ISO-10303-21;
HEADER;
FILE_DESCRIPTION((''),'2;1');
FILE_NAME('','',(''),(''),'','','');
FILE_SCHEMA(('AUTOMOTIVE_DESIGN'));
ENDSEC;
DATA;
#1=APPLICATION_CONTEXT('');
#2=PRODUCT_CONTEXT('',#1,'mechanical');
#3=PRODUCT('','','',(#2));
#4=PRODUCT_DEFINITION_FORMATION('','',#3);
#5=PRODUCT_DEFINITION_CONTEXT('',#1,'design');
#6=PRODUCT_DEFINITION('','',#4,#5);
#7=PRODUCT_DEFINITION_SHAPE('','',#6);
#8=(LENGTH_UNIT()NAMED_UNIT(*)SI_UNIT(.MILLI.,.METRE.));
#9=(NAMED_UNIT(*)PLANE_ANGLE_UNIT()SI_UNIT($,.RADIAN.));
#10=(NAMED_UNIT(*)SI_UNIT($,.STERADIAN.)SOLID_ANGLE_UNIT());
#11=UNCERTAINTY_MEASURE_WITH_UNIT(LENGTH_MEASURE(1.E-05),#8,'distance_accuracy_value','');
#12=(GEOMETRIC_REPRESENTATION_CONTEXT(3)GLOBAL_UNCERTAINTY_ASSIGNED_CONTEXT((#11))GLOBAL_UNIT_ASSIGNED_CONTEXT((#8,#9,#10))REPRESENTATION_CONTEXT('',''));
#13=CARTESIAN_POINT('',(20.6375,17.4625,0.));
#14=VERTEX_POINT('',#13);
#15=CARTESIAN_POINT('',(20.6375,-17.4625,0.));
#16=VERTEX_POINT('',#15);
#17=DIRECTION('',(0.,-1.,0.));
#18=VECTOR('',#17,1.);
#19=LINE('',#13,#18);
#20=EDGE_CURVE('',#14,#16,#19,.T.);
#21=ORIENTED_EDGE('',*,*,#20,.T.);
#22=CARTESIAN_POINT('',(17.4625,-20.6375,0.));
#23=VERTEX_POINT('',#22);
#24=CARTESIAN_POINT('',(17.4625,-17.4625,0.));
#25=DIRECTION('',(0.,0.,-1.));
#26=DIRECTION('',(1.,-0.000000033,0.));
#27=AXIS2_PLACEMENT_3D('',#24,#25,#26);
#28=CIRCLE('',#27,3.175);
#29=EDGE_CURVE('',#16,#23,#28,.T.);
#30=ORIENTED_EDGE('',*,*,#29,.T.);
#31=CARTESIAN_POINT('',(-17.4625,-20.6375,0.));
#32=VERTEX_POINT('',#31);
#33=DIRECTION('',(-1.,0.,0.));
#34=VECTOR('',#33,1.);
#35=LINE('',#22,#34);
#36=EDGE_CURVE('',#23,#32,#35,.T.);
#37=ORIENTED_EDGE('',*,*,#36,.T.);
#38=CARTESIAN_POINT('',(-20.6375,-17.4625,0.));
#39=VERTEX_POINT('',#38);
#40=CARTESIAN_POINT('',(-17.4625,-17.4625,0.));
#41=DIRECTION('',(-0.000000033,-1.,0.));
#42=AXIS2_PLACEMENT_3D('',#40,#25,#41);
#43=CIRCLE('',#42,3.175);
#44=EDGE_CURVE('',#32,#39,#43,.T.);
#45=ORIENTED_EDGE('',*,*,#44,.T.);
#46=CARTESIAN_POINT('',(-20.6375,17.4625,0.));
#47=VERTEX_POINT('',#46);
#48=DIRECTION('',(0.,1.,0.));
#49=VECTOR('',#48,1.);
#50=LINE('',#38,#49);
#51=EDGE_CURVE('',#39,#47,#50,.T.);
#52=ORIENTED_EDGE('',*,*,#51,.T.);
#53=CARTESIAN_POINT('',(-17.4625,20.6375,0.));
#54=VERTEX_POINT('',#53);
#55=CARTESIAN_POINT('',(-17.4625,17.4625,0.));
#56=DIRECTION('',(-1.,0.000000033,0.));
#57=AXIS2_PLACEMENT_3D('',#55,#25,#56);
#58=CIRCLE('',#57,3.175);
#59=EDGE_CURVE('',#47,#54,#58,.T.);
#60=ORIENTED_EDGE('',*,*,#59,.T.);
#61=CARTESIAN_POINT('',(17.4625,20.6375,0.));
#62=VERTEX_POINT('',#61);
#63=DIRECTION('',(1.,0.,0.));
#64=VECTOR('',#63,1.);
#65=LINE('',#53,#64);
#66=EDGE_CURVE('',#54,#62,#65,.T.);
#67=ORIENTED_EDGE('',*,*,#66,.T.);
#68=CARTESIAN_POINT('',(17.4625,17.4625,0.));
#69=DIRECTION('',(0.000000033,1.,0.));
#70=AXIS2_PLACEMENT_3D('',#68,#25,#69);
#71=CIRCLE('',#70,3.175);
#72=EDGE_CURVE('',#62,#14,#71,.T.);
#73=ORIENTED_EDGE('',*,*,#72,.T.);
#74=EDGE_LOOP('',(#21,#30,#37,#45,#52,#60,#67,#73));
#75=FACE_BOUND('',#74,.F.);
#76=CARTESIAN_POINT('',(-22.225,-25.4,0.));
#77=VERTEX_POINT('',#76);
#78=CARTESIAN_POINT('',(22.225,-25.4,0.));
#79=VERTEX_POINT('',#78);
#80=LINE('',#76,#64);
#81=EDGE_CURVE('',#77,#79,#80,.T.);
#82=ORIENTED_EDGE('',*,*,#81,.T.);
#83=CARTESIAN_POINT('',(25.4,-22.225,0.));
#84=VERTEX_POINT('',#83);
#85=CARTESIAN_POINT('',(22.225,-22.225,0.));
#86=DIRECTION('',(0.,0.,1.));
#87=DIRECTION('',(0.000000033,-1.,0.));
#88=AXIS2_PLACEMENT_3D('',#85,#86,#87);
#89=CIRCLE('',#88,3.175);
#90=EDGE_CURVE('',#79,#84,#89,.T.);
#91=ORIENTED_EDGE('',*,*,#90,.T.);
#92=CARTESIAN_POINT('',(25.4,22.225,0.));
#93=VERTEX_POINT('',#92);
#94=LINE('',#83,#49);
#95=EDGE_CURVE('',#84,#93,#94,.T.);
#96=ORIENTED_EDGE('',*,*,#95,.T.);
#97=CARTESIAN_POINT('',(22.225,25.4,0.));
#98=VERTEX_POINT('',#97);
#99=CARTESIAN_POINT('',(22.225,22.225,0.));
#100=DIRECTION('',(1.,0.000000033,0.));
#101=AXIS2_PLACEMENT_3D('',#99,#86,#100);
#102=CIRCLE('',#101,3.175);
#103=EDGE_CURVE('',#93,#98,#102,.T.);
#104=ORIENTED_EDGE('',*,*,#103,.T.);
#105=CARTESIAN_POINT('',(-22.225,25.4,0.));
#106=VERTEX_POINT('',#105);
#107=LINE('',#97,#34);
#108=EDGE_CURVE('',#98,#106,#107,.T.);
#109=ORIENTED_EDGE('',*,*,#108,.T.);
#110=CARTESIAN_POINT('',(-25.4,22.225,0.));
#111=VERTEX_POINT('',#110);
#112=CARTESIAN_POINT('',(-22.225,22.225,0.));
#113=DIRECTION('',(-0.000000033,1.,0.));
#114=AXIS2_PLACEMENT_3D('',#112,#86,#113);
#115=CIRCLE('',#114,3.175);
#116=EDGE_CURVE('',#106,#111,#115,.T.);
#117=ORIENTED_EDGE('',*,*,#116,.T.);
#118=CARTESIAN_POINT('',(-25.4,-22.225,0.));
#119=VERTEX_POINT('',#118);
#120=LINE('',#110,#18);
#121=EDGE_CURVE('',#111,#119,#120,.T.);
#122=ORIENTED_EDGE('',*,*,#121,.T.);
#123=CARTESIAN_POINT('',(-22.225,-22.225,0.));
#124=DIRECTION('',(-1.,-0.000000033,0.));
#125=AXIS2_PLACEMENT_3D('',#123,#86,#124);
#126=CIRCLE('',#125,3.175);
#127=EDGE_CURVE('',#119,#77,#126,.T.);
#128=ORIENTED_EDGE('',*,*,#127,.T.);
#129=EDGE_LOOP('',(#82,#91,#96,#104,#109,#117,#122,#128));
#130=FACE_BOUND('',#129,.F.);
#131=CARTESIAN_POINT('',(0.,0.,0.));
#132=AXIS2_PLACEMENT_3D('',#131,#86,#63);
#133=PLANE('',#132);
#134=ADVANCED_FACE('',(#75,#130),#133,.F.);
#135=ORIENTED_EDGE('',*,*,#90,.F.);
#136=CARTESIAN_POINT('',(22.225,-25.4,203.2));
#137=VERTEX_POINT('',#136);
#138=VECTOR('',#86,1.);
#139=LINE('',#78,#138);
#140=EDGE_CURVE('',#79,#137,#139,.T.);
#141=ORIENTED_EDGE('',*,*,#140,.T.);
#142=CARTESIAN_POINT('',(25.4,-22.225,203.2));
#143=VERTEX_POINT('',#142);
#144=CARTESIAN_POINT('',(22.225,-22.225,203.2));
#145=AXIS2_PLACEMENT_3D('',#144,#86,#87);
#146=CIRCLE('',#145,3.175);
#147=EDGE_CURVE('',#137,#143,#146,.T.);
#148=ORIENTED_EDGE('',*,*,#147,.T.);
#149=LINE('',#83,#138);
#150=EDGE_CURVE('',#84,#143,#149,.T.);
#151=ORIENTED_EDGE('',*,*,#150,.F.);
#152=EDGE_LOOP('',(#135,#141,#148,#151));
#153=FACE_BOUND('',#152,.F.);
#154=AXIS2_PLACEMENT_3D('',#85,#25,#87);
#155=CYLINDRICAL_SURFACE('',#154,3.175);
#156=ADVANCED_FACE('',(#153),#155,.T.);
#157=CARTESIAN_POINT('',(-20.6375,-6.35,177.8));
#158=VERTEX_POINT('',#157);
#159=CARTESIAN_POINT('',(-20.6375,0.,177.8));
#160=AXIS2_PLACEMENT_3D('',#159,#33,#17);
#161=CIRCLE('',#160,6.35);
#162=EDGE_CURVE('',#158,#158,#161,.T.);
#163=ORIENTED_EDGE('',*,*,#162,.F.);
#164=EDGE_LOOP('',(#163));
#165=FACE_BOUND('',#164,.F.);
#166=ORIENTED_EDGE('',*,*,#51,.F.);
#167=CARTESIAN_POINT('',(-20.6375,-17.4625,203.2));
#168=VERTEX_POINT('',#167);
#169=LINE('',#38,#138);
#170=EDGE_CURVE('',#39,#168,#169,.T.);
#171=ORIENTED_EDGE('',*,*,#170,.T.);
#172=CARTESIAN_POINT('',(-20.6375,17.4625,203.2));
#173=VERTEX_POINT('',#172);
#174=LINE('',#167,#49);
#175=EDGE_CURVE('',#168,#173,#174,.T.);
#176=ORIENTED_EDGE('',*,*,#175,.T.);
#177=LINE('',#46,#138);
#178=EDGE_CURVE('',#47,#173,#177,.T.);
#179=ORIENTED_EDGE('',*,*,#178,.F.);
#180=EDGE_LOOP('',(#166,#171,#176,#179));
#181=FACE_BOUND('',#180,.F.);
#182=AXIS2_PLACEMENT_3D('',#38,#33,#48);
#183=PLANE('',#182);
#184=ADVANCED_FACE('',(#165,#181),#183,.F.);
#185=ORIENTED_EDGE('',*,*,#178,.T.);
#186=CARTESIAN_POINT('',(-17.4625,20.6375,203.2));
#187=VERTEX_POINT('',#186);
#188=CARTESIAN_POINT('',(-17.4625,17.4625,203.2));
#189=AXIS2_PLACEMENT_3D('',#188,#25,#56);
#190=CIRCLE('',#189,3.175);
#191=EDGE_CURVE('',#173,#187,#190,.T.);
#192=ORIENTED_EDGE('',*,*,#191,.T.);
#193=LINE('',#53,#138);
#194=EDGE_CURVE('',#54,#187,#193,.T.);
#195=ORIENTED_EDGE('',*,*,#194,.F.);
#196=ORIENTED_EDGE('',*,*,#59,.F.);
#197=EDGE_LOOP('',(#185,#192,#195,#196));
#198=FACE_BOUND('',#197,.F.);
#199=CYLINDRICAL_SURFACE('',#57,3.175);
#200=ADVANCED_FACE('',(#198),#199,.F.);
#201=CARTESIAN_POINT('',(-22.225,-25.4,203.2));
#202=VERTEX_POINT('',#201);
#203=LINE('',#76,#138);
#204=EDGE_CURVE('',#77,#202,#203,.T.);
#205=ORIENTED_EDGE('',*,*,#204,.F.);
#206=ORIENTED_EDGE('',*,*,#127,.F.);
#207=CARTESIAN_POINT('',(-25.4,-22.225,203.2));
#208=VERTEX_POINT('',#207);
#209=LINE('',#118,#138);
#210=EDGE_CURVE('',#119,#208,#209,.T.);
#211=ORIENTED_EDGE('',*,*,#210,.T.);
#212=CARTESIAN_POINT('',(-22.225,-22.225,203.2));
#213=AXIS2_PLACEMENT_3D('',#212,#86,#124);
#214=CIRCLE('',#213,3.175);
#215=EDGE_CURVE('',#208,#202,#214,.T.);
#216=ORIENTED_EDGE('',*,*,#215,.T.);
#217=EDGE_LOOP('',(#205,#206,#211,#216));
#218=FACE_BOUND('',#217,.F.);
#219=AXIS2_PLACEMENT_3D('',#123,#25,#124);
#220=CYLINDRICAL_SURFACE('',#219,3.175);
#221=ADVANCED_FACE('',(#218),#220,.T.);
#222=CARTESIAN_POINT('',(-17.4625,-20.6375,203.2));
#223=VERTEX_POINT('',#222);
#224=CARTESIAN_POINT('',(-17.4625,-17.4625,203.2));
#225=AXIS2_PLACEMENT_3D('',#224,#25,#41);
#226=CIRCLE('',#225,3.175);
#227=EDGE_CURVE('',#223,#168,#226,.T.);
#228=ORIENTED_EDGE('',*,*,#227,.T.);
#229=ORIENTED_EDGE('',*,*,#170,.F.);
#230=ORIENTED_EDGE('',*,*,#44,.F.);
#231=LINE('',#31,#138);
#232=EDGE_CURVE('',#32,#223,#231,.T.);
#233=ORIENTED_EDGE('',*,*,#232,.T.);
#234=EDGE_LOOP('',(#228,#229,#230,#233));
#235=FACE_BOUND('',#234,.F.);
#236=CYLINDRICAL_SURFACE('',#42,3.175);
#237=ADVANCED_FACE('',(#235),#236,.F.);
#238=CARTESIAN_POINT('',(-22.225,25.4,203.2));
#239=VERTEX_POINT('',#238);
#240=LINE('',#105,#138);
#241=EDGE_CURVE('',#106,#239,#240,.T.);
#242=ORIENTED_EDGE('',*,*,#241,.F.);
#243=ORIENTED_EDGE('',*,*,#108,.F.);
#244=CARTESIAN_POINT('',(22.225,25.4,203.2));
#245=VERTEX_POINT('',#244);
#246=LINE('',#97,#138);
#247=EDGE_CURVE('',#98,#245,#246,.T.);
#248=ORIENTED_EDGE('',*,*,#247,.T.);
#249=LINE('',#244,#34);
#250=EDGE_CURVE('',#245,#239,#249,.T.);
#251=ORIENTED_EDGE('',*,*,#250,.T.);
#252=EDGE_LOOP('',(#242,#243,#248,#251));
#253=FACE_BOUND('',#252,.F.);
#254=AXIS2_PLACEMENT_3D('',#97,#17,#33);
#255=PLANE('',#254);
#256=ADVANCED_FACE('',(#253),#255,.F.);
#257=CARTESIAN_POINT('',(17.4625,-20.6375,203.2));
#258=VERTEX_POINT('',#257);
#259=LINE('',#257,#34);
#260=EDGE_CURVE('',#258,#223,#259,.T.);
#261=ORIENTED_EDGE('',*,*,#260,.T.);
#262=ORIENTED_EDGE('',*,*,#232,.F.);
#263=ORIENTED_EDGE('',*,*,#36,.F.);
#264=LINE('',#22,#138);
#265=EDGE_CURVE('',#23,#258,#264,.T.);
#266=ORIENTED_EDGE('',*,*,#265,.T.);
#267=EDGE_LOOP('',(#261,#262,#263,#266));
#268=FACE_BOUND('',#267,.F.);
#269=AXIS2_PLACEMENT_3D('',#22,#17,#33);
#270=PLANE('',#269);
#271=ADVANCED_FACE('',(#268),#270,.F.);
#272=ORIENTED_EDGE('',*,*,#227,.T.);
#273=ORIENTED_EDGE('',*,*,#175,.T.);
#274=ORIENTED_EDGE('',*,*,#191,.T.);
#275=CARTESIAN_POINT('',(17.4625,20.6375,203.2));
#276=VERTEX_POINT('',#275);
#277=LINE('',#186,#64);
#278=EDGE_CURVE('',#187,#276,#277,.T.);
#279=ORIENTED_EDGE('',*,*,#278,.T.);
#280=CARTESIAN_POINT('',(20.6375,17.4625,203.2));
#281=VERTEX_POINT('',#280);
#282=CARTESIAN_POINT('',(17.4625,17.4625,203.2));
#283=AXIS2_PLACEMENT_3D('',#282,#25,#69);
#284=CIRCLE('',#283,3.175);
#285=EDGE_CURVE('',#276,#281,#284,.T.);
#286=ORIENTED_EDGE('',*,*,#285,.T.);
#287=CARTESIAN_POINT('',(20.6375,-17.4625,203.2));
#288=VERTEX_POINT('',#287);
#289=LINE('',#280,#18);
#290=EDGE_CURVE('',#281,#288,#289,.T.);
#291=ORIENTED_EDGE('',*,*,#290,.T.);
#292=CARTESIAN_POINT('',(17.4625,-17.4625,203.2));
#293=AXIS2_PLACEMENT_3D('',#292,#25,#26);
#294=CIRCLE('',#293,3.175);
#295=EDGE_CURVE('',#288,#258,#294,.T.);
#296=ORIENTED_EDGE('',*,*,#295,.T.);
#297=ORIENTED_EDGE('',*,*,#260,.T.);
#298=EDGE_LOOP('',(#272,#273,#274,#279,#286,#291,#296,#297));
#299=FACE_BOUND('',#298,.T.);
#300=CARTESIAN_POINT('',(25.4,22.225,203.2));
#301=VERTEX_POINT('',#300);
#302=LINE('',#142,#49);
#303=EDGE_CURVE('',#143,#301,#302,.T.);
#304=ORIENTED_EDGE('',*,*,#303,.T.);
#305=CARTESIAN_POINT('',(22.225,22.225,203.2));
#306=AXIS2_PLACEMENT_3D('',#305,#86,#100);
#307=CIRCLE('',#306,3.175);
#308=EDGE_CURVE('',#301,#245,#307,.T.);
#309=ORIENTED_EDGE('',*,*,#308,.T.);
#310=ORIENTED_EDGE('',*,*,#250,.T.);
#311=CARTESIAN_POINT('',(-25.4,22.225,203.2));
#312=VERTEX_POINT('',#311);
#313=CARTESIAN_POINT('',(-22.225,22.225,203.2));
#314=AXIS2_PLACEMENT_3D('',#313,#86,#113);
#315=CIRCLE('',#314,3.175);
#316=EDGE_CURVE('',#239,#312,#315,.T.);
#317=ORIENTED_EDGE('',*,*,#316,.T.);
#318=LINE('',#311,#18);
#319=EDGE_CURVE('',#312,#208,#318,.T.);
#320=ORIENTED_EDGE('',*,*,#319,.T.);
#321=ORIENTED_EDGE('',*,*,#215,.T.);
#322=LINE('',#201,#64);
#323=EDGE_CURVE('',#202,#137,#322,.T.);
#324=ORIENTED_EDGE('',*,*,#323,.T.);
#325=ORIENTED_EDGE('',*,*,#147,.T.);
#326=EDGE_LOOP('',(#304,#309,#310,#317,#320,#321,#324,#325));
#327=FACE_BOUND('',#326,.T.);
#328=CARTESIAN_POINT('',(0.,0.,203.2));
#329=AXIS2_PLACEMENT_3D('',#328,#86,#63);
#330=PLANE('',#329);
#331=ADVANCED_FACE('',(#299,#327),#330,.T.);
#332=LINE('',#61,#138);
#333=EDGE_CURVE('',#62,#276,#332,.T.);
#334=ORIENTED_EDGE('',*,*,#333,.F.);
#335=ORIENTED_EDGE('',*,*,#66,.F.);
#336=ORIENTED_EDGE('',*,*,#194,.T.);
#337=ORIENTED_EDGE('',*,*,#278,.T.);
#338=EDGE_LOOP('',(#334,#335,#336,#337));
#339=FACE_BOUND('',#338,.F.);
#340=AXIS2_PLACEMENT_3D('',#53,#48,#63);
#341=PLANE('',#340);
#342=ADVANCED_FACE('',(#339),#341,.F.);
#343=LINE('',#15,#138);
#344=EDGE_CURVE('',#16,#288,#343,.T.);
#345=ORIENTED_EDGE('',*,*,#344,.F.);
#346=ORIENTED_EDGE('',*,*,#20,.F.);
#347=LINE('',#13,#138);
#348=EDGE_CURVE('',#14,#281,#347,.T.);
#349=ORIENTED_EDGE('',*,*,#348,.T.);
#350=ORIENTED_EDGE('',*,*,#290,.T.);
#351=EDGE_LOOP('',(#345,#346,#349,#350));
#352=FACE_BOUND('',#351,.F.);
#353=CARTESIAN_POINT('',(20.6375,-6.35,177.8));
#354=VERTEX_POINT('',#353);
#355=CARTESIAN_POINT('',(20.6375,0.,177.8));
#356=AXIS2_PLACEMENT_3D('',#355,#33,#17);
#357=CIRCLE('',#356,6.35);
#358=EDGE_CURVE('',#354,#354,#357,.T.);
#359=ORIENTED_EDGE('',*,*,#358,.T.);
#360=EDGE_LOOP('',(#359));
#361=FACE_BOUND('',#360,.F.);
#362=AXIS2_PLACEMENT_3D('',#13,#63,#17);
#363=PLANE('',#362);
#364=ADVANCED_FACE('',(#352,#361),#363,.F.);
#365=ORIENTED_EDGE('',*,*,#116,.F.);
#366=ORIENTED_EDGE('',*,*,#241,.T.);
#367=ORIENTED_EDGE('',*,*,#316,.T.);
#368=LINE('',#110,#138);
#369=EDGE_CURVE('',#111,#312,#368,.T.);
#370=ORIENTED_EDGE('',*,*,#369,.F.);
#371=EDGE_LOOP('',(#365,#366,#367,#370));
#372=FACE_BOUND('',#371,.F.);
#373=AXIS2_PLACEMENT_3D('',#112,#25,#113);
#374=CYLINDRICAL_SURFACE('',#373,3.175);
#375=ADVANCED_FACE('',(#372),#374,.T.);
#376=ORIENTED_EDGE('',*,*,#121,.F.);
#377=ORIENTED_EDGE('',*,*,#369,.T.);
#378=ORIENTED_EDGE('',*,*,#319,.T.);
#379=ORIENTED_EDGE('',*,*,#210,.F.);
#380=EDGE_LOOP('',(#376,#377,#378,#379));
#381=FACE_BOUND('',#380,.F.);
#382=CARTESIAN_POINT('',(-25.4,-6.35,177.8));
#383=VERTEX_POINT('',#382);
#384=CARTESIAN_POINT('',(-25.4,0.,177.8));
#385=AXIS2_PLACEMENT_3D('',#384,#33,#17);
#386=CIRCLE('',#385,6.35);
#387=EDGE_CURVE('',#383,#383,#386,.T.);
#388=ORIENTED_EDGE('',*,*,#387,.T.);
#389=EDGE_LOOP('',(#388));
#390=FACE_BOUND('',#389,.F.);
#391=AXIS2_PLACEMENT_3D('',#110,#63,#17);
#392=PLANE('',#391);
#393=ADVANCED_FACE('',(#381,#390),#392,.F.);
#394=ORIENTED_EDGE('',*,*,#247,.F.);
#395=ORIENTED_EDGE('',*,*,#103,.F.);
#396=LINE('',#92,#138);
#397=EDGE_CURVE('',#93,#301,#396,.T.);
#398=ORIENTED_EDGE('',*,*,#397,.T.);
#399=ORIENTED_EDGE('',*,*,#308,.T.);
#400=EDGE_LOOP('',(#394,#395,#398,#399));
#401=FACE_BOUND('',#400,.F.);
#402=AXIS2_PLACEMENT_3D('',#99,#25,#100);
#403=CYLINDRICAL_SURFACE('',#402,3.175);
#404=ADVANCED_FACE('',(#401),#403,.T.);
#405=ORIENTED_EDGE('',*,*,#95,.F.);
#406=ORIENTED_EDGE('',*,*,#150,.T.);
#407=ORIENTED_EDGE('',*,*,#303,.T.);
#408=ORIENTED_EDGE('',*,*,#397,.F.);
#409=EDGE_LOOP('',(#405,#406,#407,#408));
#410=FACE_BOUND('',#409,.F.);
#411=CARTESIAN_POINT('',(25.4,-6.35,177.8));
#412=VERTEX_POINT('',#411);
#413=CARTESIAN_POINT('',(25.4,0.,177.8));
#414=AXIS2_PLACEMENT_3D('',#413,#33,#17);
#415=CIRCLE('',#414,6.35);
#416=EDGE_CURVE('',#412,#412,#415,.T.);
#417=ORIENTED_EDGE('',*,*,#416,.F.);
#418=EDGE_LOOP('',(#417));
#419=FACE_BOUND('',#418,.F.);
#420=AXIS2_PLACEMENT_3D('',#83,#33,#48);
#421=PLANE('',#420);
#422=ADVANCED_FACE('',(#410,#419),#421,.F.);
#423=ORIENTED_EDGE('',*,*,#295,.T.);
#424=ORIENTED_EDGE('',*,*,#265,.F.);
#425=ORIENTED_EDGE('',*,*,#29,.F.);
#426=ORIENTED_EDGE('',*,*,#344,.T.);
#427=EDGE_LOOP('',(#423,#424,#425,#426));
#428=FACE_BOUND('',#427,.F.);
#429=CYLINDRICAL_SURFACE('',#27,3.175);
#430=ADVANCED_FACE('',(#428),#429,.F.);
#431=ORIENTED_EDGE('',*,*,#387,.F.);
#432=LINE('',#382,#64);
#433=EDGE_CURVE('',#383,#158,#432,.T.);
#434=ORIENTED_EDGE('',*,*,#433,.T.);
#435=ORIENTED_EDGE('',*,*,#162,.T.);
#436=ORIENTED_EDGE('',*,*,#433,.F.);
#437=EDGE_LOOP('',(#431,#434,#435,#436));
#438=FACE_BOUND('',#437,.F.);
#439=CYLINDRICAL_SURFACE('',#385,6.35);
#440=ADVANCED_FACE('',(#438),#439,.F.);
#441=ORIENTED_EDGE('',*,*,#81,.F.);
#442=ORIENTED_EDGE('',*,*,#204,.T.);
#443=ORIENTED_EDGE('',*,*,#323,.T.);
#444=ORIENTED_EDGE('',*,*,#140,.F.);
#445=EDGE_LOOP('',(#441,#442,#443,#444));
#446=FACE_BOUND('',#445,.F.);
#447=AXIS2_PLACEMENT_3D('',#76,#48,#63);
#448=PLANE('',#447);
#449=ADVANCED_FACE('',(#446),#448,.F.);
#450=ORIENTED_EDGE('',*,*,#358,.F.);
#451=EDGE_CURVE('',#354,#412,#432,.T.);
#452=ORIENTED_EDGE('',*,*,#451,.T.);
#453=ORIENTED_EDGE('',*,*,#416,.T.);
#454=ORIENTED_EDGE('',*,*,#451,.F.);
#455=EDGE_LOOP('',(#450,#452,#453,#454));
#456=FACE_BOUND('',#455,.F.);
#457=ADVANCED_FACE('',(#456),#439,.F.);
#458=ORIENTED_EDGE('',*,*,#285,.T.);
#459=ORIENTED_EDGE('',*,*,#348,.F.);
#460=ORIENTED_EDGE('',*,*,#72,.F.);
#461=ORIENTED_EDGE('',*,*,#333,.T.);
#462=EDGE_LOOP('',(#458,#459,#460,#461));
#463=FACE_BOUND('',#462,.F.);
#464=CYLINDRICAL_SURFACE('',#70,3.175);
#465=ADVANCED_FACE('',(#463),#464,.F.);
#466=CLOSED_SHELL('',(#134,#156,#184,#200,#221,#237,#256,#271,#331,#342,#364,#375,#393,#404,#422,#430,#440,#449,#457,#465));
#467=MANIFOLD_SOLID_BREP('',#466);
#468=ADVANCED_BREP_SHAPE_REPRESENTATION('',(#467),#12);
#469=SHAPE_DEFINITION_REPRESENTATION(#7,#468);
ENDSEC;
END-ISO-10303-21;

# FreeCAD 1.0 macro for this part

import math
import FreeCAD as App
import Part
import Sketcher

V = App.Vector
Q = App.Units.Quantity

doc = App.newDocument("Part")
body = doc.addObject("PartDesign::Body", "Body")

sketch1 = body.newObject("Sketcher::SketchObject", "Sketch")
sketch1.AttachmentSupport = (doc.getObject("XY_Plane"), [""])
sketch1.MapMode = "FlatFace"
sketch1.addGeometry([
    Part.ArcOfCircle(Part.Circle(V(22.2, 22.2, 0), V(0, 0, 1), 3.2), math.radians(0), math.radians(90)),
    Part.LineSegment(V(22.2, 25.4, 0), V(-22.2, 25.4, 0)),
    Part.ArcOfCircle(Part.Circle(V(-22.2, 22.2, 0), V(0, 0, 1), 3.2), math.radians(90), math.radians(180)),
    Part.LineSegment(V(-25.4, 22.2, 0), V(-25.4, -22.2, 0)),
    Part.ArcOfCircle(Part.Circle(V(-22.2, -22.2, 0), V(0, 0, 1), 3.2), math.radians(-180), math.radians(-90)),
    Part.LineSegment(V(-22.2, -25.4, 0), V(22.2, -25.4, 0)),
    Part.ArcOfCircle(Part.Circle(V(22.2, -22.2, 0), V(0, 0, 1), 3.2), math.radians(-90), math.radians(0)),
    Part.LineSegment(V(25.4, -22.2, 0), V(25.4, 22.2, 0)),
    Part.ArcOfCircle(Part.Circle(V(-17.5, 17.5, 0), V(0, 0, 1), 3.2), math.radians(90), math.radians(180)),
    Part.LineSegment(V(-17.5, 20.6, 0), V(17.5, 20.6, 0)),
    Part.ArcOfCircle(Part.Circle(V(17.5, 17.5, 0), V(0, 0, 1), 3.2), math.radians(0), math.radians(90)),
    Part.LineSegment(V(20.6, 17.5, 0), V(20.6, -17.5, 0)),
    Part.ArcOfCircle(Part.Circle(V(17.5, -17.5, 0), V(0, 0, 1), 3.2), math.radians(-90), math.radians(0)),
    Part.LineSegment(V(17.5, -20.6, 0), V(-17.5, -20.6, 0)),
    Part.ArcOfCircle(Part.Circle(V(-17.5, -17.5, 0), V(0, 0, 1), 3.2), math.radians(-180), math.radians(-90)),
    Part.LineSegment(V(-20.6, -17.5, 0), V(-20.6, 17.5, 0)),
], False)
sketch1.addConstraint([
    Sketcher.Constraint("Tangent", 0, 2, 1, 1),
    Sketcher.Constraint("Tangent", 1, 2, 2, 1),
    Sketcher.Constraint("Tangent", 2, 2, 3, 1),
    Sketcher.Constraint("Tangent", 3, 2, 4, 1),
    Sketcher.Constraint("Tangent", 4, 2, 5, 1),
    Sketcher.Constraint("Tangent", 5, 2, 6, 1),
    Sketcher.Constraint("Tangent", 6, 2, 7, 1),
    Sketcher.Constraint("Tangent", 7, 2, 0, 1),
    Sketcher.Constraint("Tangent", 8, 1, 9, 1),
    Sketcher.Constraint("Tangent", 9, 2, 10, 2),
    Sketcher.Constraint("Tangent", 10, 1, 11, 1),
    Sketcher.Constraint("Tangent", 11, 2, 12, 2),
    Sketcher.Constraint("Tangent", 12, 1, 13, 1),
    Sketcher.Constraint("Tangent", 13, 2, 14, 2),
    Sketcher.Constraint("Tangent", 14, 1, 15, 1),
    Sketcher.Constraint("Tangent", 15, 2, 8, 2),
    Sketcher.Constraint("Horizontal", 1),
    Sketcher.Constraint("Vertical", 3),
    Sketcher.Constraint("Horizontal", 5),
    Sketcher.Constraint("Vertical", 7),
    Sketcher.Constraint("Horizontal", 9),
    Sketcher.Constraint("Vertical", 11),
    Sketcher.Constraint("Horizontal", 13),
    Sketcher.Constraint("Vertical", 15),
    Sketcher.Constraint("Equal", 0, 2),
    Sketcher.Constraint("Equal", 2, 4),
    Sketcher.Constraint("Equal", 4, 6),
    Sketcher.Constraint("Equal", 6, 8),
    Sketcher.Constraint("Equal", 8, 10),
    Sketcher.Constraint("Equal", 10, 12),
    Sketcher.Constraint("Equal", 12, 14),
    Sketcher.Constraint("Symmetric", 0, 3, 4, 3, -1, 1),
    Sketcher.Constraint("Symmetric", 8, 3, 12, 3, -1, 1),
    Sketcher.Constraint("Equal", 5, 3),
    Sketcher.Constraint("Equal", 13, 11),
    Sketcher.Constraint("DistanceY", -1, 1, 0, 2, Q("1 in")),
    Sketcher.Constraint("Radius", 0, Q("0.125 in")),
    Sketcher.Constraint("DistanceX", 9, 1, 9, 2, Q("1.375 in")),
])
pad1 = body.newObject("PartDesign::Pad", "Pad")
pad1.Profile = sketch1
pad1.Length = Q("8 in")

sketch2 = body.newObject("Sketcher::SketchObject", "Sketch001")
sketch2.AttachmentSupport = (doc.getObject("YZ_Plane"), [""])
sketch2.MapMode = "FlatFace"
sketch2.AttachmentOffset = App.Placement(V(0, 0, -1 * 25.4), App.Rotation())
sketch2.addGeometry(Part.Circle(V(0, 178, 0), V(0, 0, 1), 6), False)
sketch2.addConstraint([
    Sketcher.Constraint("PointOnObject", 0, 3, -2),
    Sketcher.Constraint("Diameter", 0, Q("0.5 in")),
    Sketcher.Constraint("DistanceY", -1, 1, 0, 3, Q("7 in")),
])
pocket1 = body.newObject("PartDesign::Pocket", "Pocket")
pocket1.Profile = sketch2
pocket1.Type = "ThroughAll"
pocket1.Reversed = True

doc.recompute()
